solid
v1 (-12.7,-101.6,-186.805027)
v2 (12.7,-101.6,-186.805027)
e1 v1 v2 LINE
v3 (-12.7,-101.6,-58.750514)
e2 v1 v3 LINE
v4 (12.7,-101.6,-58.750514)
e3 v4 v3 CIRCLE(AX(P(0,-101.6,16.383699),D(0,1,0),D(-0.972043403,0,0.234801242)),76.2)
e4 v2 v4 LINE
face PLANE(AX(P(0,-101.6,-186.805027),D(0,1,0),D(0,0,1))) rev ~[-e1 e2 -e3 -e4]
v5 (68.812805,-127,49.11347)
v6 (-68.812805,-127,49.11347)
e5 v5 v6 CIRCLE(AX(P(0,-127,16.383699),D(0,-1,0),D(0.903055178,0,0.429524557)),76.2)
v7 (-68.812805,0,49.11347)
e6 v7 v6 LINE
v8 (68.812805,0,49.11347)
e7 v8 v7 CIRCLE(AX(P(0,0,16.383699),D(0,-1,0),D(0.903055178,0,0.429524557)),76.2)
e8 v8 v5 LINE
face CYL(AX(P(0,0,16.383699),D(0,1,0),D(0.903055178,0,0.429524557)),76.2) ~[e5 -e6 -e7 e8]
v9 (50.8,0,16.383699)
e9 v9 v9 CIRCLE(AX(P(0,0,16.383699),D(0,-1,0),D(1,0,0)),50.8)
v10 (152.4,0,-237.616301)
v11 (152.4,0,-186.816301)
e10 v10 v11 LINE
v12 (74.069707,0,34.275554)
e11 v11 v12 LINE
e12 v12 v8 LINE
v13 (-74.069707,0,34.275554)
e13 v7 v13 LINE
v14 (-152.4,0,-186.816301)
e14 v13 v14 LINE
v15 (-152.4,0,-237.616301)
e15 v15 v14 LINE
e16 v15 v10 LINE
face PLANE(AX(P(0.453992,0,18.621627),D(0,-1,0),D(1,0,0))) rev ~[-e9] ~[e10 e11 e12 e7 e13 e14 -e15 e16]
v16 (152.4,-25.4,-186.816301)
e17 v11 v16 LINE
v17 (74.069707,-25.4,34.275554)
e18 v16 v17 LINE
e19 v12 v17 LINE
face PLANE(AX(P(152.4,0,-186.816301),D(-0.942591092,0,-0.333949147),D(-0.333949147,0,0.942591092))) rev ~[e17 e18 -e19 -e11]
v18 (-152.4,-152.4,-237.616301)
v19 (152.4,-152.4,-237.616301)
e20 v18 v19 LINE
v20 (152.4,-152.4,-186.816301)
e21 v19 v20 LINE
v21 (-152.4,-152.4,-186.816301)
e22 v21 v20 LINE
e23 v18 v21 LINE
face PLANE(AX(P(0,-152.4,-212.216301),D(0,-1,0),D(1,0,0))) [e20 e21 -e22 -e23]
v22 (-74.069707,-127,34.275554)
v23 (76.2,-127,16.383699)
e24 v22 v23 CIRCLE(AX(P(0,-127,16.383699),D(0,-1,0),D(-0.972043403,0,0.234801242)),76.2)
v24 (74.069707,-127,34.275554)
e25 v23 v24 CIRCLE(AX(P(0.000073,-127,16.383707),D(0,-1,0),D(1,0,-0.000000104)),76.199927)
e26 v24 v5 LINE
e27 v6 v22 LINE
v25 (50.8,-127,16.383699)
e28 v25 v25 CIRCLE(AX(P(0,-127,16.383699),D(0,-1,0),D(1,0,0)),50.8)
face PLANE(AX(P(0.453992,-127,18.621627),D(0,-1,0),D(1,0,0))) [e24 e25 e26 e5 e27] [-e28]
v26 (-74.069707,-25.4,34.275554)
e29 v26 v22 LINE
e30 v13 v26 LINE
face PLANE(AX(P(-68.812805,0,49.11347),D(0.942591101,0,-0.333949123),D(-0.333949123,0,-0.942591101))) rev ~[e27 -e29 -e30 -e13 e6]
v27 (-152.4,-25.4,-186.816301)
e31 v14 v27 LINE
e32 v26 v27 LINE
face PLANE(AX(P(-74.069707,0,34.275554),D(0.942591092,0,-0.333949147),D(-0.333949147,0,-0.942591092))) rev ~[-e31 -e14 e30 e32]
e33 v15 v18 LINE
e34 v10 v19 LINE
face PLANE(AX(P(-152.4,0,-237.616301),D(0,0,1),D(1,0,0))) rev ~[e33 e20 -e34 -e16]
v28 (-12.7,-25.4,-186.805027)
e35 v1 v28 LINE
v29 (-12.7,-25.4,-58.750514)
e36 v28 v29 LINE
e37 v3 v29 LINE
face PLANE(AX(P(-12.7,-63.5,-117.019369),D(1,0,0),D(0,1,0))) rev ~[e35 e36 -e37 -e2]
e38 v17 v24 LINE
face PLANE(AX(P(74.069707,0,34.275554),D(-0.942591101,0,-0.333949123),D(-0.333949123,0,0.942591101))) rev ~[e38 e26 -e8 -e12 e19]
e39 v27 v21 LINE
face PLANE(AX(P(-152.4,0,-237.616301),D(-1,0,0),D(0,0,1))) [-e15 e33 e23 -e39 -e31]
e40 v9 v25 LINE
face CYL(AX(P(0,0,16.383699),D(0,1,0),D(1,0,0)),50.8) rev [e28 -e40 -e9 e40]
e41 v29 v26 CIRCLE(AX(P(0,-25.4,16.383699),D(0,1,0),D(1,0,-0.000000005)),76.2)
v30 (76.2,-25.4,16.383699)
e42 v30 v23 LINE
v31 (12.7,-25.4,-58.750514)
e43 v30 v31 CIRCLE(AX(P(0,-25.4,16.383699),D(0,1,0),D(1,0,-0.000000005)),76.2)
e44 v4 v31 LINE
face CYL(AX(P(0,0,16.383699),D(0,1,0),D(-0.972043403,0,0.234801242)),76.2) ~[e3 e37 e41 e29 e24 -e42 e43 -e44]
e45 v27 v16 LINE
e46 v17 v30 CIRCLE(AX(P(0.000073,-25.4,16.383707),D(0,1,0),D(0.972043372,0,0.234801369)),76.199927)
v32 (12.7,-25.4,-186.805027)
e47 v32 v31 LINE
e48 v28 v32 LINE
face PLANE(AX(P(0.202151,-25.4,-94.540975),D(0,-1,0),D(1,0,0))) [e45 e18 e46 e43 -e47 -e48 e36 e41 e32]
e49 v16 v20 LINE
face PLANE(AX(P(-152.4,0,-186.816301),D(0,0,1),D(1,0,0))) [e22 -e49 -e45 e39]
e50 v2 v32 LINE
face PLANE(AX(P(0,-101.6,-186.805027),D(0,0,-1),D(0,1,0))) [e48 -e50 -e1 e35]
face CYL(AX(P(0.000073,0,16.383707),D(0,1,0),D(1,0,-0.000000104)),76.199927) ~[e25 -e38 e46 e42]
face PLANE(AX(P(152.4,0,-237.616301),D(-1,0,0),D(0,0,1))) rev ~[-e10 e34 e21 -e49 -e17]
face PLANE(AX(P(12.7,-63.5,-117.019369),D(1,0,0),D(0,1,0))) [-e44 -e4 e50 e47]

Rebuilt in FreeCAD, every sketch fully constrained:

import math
import FreeCAD as App
import Part
import Sketcher
from FreeCAD import Vector
Q = App.Units.Quantity


def add_polygon(sketch, points):
    """Adds a closed chain of lines whose ends are joined by coincident constraints."""
    first, n = sketch.GeometryCount, len(points)
    for a, b in zip(points, points[1:] + points[:1]):
        sketch.addGeometry(Part.LineSegment(App.Vector(*a, 0), App.Vector(*b, 0)), False)
    for i in range(n):
        sketch.addConstraint(Sketcher.Constraint("Coincident", first + i, 2, first + (i + 1) % n, 1))

doc = App.newDocument("Part")
params = doc.addObject("Spreadsheet::Sheet", "Params")
for row, (alias, value) in enumerate([
    ("sketch1_radius", "3 in"),
    ("sketch1_width", "12 in"),
    ("pad1_length", "1 in"),
    ("sketch2_width", "12 in"),
    ("sketch2_height", "2 in"),
    ("pad2_length", "6 in"),
    ("sketch3_diameter", "4 in"),
    ("sketch3_radius", "3 in"),
    ("sketch3_radius2", "3 in"),
    ("pad3_length", "5 in"),
    ("sketch4_width", "3 in"),
    ("pad4_length", "1 in"),
], start=1):
    params.set(f"A{row}", alias)
    params.set(f"B{row}", "=" + value)
    params.setAlias(f"B{row}", alias)

body = doc.addObject("PartDesign::Body", "Body")

sketch1 = body.newObject("Sketcher::SketchObject", "Sketch")
sketch1.AttachmentSupport = (doc.getObject("XZ_Plane"), [""])
sketch1.MapMode = "FlatFace"
sketch1.addGeometry([
    Part.LineSegment(Vector(-74.069707, 34.275554, 0), Vector(-152.4, -186.816301, 0)),
    Part.LineSegment(Vector(-152.4, -186.816301, 0), Vector(152.4, -186.816301, 0)),
    Part.LineSegment(Vector(152.4, -186.816301, 0), Vector(74.069707, 34.275554, 0)),
    Part.ArcOfCircle(Part.Circle(Vector(0.000073, 16.383707, 0), Vector(0, 0, 1), 76.199927), math.radians(-0.000006), math.radians(13.579914)),
    Part.ArcOfCircle(Part.Circle(Vector(0, 16.383699, 0), Vector(0, 0, 1), 76.2), math.radians(166.420093), math.radians(360)),
], False)
sketch1.addConstraint([
    Sketcher.Constraint("Coincident", 0, 2, 1, 1),
    Sketcher.Constraint("Coincident", 1, 2, 2, 1),
    Sketcher.Constraint("Coincident", 2, 2, 3, 2),
    Sketcher.Constraint("Coincident", 3, 1, 4, 2),
    Sketcher.Constraint("Coincident", 4, 1, 0, 1),
    Sketcher.Constraint("Horizontal", 1),
    Sketcher.Constraint("PointOnObject", 4, 3, -2),
    Sketcher.Constraint("Radius", 4, Q("3 in")),
    Sketcher.Constraint("DistanceX", 1, 1, 1, 2, Q("12 in")),
    Sketcher.Constraint("DistanceX", 0, 2, -1, 1, Q("6 in")),
    Sketcher.Constraint("DistanceY", 0, 2, 4, 3, Q("8 in")),
    Sketcher.Constraint("DistanceY", 1, 2, 3, 1, Q("8 in")),
    Sketcher.Constraint("Radius", 3, Q("76.199927 mm")),
    Sketcher.Constraint("DistanceY", -1, 1, 4, 3, Q("16.383699 mm")),
    Sketcher.Constraint("DistanceX", 4, 1, 3, 3, Q("74.06978 mm")),
    Sketcher.Constraint("Distance", 2, Q("234.557548 mm")),
    Sketcher.Constraint("DistanceY", -1, 1, 3, 3, Q("16.383707 mm")),
])
sketch1.setExpression("Constraints[7]", "Params.sketch1_radius")
sketch1.setExpression("Constraints[8]", "Params.sketch1_width")
pad1 = body.newObject("PartDesign::Pad", "Pad")
pad1.Profile = sketch1
pad1.setExpression("Length", "Params.pad1_length")

sketch2 = body.newObject("Sketcher::SketchObject", "Sketch001")
sketch2.AttachmentSupport = (doc.getObject("XZ_Plane"), [""])
sketch2.MapMode = "FlatFace"
add_polygon(sketch2, [(-152, -187), (-152, -238), (152, -238), (152, -187)])
sketch2.addConstraint([
    Sketcher.Constraint("Vertical", 0),
    Sketcher.Constraint("Horizontal", 1),
    Sketcher.Constraint("Vertical", 2),
    Sketcher.Constraint("Horizontal", 3),
    Sketcher.Constraint("DistanceX", 1, 1, 1, 2, Q("12 in")),
    Sketcher.Constraint("DistanceY", 0, 2, 0, 1, Q("2 in")),
    Sketcher.Constraint("DistanceX", 0, 2, -1, 1, Q("6 in")),
    Sketcher.Constraint("DistanceY", 0, 2, -1, 1, Q("237.616301 mm")),
])
sketch2.setExpression("Constraints[8]", "Params.sketch2_width")
sketch2.setExpression("Constraints[9]", "Params.sketch2_height")
pad2 = body.newObject("PartDesign::Pad", "Pad001")
pad2.Profile = sketch2
pad2.setExpression("Length", "Params.pad2_length")

sketch3 = body.newObject("Sketcher::SketchObject", "Sketch002")
sketch3.AttachmentSupport = (doc.getObject("XZ_Plane"), [""])
sketch3.MapMode = "FlatFace"
sketch3.addGeometry([
    Part.LineSegment(Vector(-68.812805, 49.11347, 0), Vector(-74.069707, 34.275554, 0)),
    Part.ArcOfCircle(Part.Circle(Vector(0, 16.383699, 0), Vector(0, 0, 1), 76.2), math.radians(166.420093), math.radians(360)),
    Part.ArcOfCircle(Part.Circle(Vector(0.000073, 16.383707, 0), Vector(0, 0, 1), 76.199927), math.radians(-0.000006), math.radians(13.579914)),
    Part.LineSegment(Vector(74.069707, 34.275554, 0), Vector(68.812805, 49.11347, 0)),
    Part.ArcOfCircle(Part.Circle(Vector(0, 16.383699, 0), Vector(0, 0, 1), 76.2), math.radians(25.437391), math.radians(154.562609)),
    Part.Circle(Vector(0, 16.383699, 0), Vector(0, 0, 1), 50.8),
], False)
sketch3.addConstraint([
    Sketcher.Constraint("Coincident", 0, 2, 1, 1),
    Sketcher.Constraint("Coincident", 1, 2, 2, 1),
    Sketcher.Constraint("Coincident", 2, 2, 3, 1),
    Sketcher.Constraint("Coincident", 3, 2, 4, 1),
    Sketcher.Constraint("Coincident", 4, 2, 0, 1),
    Sketcher.Constraint("Coincident", 4, 3, 1, 3),
    Sketcher.Constraint("Coincident", 5, 3, 1, 3),
    Sketcher.Constraint("PointOnObject", 1, 3, -2),
    Sketcher.Constraint("Diameter", 5, Q("4 in")),
    Sketcher.Constraint("Radius", 1, Q("3 in")),
    Sketcher.Constraint("Radius", 4, Q("3 in")),
    Sketcher.Constraint("Radius", 2, Q("76.199927 mm")),
    Sketcher.Constraint("DistanceY", -1, 1, 1, 3, Q("16.383699 mm")),
    Sketcher.Constraint("DistanceY", -1, 1, 1, 2, Q("16.383699 mm")),
    Sketcher.Constraint("DistanceY", -1, 1, 3, 2, Q("49.11347 mm")),
    Sketcher.Constraint("DistanceY", -1, 1, 4, 2, Q("49.11347 mm")),
    Sketcher.Constraint("DistanceX", 0, 2, 2, 3, Q("74.06978 mm")),
    Sketcher.Constraint("Distance", 3, Q("15.741625 mm")),
    Sketcher.Constraint("DistanceY", -1, 1, 2, 3, Q("16.383707 mm")),
])
sketch3.setExpression("Constraints[8]", "Params.sketch3_diameter")
sketch3.setExpression("Constraints[9]", "Params.sketch3_radius")
sketch3.setExpression("Constraints[10]", "Params.sketch3_radius2")
pad3 = body.newObject("PartDesign::Pad", "Pad002")
pad3.Profile = sketch3
pad3.setExpression("Length", "Params.pad3_length")

sketch4 = body.newObject("Sketcher::SketchObject", "Sketch003")
sketch4.AttachmentSupport = (doc.getObject("YZ_Plane"), [""])
sketch4.MapMode = "FlatFace"
add_polygon(sketch4, [(-102, -47), (-102, -187), (-25, -187), (-25, -47)])
sketch4.addConstraint([
    Sketcher.Constraint("Vertical", 0),
    Sketcher.Constraint("Horizontal", 1),
    Sketcher.Constraint("Vertical", 2),
    Sketcher.Constraint("Horizontal", 3),
    Sketcher.Constraint("DistanceX", 1, 1, 1, 2, Q("3 in")),
    Sketcher.Constraint("DistanceX", 0, 2, -1, 1, Q("4 in")),
    Sketcher.Constraint("DistanceY", 0, 2, 0, 1, Q("139.571316 mm")),
    Sketcher.Constraint("DistanceY", 2, 2, -1, 1, Q("47.233711 mm")),
])
sketch4.setExpression("Constraints[8]", "Params.sketch4_width")
pad4 = body.newObject("PartDesign::Pad", "Pad003")
pad4.Profile = sketch4
pad4.setExpression("Length", "Params.pad4_length")
pad4.Midplane = True

doc.recompute()
